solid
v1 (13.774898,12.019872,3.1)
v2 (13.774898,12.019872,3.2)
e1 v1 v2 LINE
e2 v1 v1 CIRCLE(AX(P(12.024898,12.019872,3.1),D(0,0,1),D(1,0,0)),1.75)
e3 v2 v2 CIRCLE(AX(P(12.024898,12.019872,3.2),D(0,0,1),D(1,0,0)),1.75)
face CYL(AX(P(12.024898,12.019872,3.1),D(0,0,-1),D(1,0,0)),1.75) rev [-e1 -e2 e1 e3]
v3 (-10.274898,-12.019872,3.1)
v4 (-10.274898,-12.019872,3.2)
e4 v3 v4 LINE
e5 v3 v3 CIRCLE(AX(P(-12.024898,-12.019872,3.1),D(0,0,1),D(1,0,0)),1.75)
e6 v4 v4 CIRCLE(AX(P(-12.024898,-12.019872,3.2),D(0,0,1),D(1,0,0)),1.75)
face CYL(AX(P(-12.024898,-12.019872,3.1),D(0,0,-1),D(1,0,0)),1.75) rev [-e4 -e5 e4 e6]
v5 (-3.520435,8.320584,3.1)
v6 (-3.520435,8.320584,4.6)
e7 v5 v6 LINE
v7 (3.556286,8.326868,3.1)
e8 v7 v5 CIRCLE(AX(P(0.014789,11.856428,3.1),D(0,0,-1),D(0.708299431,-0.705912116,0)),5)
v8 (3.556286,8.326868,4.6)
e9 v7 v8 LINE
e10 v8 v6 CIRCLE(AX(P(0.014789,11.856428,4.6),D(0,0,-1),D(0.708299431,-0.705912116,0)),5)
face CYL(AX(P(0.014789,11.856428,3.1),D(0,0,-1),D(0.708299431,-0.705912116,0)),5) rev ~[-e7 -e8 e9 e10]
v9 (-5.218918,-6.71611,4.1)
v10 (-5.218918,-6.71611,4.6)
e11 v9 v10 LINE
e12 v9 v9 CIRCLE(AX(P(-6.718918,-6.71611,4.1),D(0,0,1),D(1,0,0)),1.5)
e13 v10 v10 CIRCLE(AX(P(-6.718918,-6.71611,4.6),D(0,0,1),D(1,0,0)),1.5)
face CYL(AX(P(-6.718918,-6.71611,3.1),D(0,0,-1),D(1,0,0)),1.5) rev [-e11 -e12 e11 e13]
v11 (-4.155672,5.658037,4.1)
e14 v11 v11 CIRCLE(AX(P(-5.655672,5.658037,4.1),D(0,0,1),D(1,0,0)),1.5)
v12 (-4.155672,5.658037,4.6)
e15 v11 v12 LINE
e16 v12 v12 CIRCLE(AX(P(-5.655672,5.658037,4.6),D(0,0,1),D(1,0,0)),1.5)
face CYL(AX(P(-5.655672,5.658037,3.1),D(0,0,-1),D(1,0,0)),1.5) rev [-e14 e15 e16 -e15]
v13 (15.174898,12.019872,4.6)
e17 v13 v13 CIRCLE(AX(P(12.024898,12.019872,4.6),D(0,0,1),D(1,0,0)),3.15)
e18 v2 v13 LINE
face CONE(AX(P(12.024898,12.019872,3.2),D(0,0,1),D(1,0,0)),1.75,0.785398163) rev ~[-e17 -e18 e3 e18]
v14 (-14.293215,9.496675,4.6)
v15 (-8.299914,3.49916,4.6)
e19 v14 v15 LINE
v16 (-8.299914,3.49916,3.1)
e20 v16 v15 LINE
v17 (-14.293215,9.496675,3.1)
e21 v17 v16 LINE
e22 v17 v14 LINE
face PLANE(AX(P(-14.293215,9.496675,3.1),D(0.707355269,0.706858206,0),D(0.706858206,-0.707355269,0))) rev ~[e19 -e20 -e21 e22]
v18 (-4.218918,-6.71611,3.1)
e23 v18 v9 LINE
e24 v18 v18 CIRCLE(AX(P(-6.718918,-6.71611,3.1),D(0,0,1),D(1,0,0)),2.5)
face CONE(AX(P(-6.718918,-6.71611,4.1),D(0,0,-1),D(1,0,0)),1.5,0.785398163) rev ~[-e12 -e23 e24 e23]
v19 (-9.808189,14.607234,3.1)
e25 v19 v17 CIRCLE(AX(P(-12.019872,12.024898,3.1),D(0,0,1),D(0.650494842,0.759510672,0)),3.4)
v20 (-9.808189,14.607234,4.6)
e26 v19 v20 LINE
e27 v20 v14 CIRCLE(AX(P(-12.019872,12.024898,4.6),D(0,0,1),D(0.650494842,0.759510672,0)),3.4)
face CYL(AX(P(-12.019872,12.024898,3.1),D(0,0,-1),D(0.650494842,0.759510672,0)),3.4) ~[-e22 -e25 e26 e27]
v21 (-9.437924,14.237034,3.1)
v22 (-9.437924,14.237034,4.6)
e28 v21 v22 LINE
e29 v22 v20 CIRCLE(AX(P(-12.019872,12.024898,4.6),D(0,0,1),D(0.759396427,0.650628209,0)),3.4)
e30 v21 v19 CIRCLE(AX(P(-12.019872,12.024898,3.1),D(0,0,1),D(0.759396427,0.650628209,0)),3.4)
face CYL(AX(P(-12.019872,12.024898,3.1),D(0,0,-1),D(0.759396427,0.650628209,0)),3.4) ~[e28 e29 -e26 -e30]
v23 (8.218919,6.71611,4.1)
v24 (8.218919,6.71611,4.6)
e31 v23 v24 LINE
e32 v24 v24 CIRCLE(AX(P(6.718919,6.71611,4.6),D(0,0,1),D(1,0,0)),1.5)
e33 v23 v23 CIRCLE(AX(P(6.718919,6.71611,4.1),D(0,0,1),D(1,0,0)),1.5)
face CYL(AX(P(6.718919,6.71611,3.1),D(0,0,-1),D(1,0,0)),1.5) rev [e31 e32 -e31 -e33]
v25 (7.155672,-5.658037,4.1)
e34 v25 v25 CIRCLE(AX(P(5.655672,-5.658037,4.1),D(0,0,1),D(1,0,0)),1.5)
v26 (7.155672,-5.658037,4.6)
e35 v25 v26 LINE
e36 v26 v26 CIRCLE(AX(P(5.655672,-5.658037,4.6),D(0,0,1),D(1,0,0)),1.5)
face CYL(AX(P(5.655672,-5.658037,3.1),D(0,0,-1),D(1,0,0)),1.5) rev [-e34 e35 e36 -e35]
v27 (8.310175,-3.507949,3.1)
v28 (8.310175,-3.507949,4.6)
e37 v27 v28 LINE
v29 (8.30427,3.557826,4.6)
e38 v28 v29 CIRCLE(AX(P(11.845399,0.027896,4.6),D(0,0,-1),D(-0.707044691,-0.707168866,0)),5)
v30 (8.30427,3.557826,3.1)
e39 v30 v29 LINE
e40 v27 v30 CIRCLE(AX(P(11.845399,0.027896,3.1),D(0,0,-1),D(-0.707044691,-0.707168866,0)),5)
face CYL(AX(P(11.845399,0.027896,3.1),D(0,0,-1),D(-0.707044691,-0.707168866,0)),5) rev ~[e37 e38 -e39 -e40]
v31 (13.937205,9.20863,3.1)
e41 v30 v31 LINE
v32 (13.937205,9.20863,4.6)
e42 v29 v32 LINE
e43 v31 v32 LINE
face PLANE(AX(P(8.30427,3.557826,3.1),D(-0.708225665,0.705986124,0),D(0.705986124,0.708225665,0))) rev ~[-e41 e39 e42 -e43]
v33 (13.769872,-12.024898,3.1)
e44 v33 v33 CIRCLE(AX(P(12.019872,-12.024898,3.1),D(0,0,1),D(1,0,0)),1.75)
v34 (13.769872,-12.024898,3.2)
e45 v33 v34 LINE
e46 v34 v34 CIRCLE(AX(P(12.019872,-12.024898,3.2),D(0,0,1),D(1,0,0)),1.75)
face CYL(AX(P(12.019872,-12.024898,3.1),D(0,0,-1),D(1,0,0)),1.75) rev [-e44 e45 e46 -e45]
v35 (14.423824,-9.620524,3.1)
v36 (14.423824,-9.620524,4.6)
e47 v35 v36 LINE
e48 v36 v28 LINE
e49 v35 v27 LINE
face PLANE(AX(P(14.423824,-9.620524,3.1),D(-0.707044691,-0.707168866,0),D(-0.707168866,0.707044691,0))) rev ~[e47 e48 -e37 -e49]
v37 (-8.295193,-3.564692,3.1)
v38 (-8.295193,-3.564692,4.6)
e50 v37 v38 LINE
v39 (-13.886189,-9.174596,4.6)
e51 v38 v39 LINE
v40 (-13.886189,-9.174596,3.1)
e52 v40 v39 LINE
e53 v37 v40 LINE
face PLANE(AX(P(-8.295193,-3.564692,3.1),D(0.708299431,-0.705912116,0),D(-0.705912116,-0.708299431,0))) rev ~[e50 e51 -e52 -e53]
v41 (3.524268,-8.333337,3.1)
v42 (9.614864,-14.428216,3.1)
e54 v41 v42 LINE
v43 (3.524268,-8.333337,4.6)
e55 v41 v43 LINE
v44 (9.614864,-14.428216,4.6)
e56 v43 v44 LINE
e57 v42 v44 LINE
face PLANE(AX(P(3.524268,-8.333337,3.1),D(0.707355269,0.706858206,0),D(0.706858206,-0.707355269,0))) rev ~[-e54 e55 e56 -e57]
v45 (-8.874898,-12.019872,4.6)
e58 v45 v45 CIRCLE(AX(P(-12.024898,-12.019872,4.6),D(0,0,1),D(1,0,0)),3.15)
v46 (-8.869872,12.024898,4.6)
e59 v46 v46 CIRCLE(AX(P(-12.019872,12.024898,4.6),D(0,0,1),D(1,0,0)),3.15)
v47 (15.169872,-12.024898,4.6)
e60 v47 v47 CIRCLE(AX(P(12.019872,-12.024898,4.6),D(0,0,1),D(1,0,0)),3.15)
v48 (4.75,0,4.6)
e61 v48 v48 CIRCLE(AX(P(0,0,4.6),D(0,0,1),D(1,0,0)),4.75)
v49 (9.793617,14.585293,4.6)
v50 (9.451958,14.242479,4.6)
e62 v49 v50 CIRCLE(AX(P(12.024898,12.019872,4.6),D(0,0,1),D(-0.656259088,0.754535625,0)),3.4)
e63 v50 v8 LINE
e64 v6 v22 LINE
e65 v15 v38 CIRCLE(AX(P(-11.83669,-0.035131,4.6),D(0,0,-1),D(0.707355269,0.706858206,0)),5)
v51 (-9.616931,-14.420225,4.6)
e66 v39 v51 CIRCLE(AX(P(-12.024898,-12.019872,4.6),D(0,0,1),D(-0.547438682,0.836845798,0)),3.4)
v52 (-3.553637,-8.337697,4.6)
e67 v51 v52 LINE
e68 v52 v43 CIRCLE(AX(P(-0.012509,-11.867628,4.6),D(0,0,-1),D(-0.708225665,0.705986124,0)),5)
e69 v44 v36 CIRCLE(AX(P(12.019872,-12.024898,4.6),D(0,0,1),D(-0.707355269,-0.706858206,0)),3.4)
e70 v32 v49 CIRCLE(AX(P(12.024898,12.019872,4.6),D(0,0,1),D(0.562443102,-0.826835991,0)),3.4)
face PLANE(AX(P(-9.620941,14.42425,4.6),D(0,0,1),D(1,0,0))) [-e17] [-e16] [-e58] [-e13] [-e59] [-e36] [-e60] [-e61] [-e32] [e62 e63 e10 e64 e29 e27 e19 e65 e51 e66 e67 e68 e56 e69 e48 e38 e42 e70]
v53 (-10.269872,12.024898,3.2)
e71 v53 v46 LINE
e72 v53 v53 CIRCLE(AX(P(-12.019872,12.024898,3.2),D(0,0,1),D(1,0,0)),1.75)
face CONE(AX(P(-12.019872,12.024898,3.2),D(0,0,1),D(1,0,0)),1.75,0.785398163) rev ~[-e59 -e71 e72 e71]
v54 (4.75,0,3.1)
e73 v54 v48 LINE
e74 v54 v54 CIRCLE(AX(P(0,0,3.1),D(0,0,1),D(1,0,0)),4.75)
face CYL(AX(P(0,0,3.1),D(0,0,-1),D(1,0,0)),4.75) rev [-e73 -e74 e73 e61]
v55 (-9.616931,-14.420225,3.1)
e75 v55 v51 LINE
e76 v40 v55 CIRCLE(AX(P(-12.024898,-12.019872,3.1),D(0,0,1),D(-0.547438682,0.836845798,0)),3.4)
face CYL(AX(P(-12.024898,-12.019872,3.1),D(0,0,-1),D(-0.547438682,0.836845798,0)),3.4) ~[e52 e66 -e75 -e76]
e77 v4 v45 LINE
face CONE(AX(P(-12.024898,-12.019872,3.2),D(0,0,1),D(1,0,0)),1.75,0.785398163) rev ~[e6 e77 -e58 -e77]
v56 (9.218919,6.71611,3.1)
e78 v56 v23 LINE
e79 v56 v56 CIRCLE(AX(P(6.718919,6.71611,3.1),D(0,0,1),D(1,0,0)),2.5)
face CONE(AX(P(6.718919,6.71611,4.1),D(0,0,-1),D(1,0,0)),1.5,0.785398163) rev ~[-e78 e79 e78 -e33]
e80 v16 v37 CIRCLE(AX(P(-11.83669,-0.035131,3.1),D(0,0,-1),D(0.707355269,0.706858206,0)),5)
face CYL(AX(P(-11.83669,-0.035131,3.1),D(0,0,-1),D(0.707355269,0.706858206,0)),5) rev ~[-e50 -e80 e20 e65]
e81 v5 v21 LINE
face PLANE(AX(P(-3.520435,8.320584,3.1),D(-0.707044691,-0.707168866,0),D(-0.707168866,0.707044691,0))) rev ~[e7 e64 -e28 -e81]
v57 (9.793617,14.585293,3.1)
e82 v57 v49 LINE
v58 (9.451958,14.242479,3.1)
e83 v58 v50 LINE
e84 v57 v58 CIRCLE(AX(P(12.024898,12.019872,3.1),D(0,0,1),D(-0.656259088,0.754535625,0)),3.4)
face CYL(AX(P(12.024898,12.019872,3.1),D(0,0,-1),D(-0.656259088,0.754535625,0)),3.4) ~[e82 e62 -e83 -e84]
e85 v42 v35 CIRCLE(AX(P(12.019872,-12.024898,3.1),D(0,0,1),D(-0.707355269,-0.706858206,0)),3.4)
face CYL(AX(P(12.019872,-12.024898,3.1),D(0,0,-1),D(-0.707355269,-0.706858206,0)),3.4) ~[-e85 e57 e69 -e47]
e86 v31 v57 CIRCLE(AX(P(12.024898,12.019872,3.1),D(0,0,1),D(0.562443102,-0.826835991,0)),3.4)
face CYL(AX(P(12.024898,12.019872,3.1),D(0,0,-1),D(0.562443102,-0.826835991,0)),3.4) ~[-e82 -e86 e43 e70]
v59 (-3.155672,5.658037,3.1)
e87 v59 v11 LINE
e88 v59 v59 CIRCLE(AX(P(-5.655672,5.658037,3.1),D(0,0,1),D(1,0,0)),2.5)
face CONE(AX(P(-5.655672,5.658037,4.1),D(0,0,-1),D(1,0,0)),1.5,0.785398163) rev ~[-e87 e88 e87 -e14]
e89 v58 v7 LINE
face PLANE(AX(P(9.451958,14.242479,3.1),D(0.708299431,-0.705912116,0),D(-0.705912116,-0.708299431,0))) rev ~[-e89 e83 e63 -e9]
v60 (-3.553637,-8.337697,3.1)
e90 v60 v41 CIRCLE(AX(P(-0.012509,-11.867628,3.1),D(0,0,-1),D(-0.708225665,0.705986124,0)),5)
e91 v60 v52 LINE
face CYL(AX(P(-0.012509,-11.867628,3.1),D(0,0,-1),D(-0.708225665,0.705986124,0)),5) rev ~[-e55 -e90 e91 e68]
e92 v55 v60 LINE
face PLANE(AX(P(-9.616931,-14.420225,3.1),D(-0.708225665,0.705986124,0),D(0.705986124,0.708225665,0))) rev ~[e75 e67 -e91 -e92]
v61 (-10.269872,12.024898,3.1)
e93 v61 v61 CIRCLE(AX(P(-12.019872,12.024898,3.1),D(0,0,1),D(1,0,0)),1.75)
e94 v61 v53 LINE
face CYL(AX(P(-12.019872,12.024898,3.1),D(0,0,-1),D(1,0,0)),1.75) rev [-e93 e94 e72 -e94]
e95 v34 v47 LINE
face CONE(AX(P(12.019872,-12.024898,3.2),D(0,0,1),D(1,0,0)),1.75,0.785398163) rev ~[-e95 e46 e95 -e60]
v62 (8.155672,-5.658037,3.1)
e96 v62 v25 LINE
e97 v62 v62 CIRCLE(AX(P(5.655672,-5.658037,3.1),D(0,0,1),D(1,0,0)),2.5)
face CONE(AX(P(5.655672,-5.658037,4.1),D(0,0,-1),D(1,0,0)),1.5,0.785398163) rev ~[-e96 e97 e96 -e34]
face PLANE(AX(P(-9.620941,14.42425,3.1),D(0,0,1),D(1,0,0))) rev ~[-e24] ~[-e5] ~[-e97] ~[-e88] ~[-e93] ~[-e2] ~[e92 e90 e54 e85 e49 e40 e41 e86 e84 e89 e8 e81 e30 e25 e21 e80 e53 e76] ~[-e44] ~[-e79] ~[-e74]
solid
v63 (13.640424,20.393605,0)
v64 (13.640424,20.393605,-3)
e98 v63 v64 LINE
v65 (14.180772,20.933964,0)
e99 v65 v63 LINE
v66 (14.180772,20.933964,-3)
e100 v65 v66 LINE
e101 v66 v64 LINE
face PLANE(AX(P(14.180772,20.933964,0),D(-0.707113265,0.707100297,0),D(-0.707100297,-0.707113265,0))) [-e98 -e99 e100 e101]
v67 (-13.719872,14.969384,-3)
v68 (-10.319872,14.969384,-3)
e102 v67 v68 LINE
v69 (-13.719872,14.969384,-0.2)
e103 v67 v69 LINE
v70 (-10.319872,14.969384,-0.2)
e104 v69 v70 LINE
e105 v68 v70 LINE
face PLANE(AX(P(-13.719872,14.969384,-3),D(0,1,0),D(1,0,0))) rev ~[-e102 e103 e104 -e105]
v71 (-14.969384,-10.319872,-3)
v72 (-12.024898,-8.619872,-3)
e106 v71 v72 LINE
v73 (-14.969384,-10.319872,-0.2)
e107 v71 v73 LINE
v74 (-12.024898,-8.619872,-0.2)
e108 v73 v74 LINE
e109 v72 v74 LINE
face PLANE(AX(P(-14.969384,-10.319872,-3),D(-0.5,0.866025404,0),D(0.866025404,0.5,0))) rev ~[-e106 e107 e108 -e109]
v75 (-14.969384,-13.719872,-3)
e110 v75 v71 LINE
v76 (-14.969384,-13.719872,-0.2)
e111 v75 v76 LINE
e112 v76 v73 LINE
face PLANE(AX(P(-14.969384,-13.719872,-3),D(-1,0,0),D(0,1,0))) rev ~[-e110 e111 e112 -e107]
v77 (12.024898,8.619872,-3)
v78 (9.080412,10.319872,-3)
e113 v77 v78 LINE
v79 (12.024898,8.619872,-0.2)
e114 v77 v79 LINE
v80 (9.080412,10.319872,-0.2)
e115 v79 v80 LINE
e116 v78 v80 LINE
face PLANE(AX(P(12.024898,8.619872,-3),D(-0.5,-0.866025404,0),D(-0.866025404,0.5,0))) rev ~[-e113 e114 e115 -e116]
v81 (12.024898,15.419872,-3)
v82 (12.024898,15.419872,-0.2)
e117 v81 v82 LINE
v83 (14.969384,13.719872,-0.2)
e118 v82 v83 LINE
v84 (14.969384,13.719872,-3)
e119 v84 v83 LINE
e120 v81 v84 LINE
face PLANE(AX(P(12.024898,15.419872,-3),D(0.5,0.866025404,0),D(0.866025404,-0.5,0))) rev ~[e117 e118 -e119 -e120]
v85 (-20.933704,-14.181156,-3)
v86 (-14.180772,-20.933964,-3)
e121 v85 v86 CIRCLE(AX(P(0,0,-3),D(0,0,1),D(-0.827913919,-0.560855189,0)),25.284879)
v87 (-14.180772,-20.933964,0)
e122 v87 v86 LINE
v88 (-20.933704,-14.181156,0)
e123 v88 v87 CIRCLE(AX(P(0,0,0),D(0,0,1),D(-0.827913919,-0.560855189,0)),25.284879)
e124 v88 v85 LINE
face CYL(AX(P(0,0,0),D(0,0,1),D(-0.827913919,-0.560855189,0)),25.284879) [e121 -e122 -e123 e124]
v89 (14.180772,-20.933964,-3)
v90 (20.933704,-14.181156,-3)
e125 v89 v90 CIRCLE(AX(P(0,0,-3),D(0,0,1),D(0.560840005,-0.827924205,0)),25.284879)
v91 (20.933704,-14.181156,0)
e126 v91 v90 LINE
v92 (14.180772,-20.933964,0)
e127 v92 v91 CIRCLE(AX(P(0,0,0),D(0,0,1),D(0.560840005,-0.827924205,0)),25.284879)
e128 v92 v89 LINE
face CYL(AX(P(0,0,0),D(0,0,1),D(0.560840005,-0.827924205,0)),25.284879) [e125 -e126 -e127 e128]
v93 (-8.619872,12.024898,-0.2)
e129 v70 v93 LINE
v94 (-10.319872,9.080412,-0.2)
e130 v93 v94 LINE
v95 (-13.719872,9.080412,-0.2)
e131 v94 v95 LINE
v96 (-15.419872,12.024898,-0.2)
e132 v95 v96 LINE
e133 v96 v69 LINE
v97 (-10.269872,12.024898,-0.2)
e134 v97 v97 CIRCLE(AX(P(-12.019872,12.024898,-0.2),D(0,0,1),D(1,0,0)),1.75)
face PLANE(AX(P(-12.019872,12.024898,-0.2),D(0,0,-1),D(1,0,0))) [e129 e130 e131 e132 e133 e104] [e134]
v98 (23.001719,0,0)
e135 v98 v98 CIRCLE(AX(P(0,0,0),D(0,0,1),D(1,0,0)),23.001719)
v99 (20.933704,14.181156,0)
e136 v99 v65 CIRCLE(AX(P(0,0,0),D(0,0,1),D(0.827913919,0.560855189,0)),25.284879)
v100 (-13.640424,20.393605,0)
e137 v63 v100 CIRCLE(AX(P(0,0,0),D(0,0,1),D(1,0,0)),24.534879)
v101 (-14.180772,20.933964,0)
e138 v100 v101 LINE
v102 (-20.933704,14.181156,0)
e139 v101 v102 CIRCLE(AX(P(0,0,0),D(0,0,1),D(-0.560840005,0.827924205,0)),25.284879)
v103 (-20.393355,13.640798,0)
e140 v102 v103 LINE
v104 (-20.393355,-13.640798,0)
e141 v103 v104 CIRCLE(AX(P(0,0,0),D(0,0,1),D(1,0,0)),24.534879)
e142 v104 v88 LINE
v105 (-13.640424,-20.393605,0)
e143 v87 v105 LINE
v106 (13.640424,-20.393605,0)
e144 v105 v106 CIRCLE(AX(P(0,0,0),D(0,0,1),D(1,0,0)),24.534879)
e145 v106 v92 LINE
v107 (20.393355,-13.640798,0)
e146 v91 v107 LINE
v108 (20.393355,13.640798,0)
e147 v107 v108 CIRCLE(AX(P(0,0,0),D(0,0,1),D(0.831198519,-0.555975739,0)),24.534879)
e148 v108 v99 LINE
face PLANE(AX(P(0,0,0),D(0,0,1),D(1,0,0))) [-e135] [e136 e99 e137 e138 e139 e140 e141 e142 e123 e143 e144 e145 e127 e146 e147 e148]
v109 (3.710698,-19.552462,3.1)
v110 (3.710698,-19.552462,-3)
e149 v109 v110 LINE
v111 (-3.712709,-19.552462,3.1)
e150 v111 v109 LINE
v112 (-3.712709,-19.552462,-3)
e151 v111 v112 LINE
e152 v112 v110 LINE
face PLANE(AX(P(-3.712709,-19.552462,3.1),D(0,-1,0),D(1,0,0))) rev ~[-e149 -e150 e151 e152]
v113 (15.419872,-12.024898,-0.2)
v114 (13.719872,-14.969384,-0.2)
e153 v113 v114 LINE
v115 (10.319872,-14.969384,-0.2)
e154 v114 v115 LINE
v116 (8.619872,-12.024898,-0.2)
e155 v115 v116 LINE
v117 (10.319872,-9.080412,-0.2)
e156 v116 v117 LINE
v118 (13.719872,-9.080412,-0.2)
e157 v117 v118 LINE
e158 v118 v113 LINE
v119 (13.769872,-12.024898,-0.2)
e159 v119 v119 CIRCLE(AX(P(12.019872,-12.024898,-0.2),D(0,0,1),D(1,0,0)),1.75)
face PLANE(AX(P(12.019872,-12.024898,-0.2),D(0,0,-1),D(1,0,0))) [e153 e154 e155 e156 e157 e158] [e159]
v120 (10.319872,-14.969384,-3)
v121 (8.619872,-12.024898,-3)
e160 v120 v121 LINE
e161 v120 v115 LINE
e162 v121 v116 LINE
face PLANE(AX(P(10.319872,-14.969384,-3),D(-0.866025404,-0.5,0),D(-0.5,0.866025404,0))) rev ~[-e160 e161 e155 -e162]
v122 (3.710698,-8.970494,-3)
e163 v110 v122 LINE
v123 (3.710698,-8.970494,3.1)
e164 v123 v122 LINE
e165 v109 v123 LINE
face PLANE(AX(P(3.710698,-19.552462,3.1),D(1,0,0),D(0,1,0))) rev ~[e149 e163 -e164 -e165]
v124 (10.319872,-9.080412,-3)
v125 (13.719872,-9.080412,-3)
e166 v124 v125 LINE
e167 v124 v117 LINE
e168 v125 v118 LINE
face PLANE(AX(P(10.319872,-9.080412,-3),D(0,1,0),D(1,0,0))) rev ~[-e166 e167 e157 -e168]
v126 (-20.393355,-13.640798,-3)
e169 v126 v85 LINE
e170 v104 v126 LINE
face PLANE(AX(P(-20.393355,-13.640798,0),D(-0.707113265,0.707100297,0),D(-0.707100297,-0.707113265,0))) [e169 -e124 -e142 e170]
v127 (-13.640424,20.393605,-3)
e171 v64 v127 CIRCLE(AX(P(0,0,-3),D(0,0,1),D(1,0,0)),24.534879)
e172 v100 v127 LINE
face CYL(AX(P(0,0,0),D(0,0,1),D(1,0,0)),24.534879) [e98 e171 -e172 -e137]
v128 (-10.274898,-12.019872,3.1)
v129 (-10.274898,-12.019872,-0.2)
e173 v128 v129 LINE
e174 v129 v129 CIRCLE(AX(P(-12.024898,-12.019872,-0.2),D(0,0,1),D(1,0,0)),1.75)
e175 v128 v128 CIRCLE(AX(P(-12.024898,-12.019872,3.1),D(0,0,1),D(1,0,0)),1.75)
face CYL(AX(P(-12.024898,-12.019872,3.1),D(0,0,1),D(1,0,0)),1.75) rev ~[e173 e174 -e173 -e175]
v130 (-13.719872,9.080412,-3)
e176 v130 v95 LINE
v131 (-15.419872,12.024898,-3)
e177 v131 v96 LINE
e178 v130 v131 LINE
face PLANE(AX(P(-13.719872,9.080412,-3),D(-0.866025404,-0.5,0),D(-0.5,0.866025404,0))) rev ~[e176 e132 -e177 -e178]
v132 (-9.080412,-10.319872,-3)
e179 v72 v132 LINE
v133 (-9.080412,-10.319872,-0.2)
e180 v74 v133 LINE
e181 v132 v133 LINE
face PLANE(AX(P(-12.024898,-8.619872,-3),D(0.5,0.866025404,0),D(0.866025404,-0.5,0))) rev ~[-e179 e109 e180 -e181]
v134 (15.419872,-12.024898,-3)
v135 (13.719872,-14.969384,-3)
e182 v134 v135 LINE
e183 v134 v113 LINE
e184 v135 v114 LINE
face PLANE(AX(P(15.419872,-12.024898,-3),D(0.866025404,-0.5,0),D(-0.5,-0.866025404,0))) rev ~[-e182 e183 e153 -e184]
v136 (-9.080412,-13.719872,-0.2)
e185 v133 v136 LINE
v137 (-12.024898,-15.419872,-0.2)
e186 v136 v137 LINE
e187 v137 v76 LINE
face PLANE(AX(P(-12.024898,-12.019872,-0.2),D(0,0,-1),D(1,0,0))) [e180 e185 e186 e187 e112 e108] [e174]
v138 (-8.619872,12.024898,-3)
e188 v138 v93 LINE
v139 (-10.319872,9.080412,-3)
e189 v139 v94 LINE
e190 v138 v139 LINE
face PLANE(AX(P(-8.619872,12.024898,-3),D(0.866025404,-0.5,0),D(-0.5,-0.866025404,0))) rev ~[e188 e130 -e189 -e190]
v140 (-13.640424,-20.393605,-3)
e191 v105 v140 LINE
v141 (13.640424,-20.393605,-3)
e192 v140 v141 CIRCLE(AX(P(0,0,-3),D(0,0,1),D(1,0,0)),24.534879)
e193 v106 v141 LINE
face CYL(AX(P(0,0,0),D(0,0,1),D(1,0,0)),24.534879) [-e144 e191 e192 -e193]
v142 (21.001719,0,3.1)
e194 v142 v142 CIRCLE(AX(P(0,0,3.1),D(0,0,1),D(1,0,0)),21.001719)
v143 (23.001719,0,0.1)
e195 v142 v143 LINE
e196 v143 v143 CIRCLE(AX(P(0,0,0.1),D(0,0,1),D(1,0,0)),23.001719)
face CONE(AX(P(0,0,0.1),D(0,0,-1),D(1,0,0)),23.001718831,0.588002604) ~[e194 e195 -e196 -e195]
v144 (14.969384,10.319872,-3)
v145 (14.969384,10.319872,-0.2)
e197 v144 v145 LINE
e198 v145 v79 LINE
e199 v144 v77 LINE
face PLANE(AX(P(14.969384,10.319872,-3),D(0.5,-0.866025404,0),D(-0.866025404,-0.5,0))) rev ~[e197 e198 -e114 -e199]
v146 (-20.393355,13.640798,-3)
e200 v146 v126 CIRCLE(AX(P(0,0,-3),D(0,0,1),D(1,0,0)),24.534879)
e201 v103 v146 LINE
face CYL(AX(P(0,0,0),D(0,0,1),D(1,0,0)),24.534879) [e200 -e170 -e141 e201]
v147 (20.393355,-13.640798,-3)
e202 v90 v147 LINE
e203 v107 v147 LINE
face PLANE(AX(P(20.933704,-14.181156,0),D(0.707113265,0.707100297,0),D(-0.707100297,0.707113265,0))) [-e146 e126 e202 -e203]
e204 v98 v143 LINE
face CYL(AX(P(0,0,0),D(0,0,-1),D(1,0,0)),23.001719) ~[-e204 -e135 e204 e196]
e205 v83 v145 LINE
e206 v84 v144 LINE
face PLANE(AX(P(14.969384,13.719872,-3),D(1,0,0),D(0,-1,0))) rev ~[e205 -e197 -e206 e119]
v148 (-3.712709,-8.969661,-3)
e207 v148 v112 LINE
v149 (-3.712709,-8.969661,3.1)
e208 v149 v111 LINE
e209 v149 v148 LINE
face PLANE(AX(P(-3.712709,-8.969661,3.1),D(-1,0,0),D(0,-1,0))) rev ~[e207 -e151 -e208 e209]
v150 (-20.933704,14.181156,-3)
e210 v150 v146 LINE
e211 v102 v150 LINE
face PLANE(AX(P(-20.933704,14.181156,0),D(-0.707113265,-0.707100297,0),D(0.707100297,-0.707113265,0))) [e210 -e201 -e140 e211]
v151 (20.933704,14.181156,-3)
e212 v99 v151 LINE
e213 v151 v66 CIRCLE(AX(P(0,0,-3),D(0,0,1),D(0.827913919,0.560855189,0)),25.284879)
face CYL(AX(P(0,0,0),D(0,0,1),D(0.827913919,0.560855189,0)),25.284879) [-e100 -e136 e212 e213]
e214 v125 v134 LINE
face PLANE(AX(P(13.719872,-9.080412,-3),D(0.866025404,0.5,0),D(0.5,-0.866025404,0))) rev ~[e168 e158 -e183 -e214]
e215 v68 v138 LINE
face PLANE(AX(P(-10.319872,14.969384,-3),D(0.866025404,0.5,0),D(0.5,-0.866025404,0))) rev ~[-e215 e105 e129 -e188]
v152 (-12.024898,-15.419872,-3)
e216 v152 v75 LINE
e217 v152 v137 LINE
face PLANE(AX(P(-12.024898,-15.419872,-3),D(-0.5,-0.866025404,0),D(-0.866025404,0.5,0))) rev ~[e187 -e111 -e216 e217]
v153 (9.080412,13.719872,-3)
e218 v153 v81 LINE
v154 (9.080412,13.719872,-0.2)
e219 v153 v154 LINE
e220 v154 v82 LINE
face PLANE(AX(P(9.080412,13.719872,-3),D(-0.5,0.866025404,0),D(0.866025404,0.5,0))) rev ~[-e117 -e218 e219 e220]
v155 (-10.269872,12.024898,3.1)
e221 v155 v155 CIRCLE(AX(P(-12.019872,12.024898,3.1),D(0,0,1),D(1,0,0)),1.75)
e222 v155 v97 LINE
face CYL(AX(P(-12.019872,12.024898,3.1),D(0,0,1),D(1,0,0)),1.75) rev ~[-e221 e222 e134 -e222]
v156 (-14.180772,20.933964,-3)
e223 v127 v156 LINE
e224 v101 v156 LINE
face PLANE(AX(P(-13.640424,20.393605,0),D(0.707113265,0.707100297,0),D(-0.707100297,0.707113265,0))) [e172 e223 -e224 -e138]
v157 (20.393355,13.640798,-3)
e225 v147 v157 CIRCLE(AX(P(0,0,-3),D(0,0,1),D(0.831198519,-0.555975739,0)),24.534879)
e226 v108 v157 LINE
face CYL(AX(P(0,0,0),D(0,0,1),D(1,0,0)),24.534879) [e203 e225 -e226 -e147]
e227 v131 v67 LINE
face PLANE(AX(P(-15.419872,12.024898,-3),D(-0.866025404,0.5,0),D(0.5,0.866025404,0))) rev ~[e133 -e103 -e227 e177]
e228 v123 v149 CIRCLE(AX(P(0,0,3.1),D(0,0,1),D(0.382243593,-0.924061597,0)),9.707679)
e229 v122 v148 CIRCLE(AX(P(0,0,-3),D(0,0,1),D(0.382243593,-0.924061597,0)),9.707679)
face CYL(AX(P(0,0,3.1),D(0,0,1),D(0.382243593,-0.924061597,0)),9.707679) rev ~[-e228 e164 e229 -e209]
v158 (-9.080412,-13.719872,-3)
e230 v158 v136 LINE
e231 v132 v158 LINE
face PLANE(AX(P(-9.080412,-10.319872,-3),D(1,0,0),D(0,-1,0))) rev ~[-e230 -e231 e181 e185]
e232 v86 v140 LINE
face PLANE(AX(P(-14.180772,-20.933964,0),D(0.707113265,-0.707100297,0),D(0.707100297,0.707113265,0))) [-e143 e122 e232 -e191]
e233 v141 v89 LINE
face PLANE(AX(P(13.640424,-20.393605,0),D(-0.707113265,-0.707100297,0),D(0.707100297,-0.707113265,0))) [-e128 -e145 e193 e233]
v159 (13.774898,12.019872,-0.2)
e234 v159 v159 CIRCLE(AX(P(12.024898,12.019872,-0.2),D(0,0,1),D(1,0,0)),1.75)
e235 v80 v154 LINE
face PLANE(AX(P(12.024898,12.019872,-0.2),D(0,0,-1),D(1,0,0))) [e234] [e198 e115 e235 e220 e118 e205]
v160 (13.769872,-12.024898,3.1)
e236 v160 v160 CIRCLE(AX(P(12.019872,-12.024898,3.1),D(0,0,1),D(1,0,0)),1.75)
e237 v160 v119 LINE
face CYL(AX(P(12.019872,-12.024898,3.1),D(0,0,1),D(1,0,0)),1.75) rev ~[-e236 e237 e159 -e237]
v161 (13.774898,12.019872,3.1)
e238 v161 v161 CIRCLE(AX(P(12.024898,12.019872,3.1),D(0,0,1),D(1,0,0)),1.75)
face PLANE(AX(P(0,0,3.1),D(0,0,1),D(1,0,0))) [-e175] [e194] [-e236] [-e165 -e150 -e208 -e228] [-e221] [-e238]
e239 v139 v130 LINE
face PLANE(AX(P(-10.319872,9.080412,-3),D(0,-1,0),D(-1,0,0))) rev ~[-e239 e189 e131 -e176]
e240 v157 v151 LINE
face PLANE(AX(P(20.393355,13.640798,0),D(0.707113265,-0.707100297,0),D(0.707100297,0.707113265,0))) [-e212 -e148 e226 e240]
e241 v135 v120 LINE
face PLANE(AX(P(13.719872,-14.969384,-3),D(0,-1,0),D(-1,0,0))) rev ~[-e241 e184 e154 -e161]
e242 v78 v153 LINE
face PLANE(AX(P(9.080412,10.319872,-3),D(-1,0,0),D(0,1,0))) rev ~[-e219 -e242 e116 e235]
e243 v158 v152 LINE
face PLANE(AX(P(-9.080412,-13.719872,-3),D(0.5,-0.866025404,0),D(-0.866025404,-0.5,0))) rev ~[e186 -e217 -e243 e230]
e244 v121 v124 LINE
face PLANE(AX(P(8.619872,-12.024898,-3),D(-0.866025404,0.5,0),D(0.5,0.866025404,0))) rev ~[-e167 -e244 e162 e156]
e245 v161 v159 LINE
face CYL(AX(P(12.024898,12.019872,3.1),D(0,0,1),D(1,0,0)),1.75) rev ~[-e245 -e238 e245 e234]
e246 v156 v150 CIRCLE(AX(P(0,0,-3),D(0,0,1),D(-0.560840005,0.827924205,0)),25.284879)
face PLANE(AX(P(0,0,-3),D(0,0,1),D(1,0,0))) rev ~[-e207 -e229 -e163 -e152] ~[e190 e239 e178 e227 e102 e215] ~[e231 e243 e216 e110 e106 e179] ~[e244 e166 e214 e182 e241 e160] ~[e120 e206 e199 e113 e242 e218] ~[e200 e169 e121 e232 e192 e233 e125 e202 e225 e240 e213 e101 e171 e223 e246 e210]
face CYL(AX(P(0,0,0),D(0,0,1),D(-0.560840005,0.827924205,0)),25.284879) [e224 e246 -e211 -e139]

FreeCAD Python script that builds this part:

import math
import FreeCAD as App
import Part
import Sketcher

V = App.Vector
Q = App.Units.Quantity


def edges_at(feature, points):
    """Names of the edges that pass closest to the given points."""
    edges = feature.Shape.Edges
    near = lambda p: min(range(len(edges)), key=lambda i: edges[i].distToShape(Part.Vertex(*p))[0])
    return sorted({f"Edge{near(p) + 1}" for p in points})

doc = App.newDocument("Part")
body = doc.addObject("PartDesign::Body", "Body")

sketch1 = doc.addObject("Sketcher::SketchObject", "Sketch")
body.addObject(sketch1)
sketch1.AttachmentSupport = (doc.XY_Plane, [""])
sketch1.MapMode = "FlatFace"
sketch1.addGeometry(Part.Circle(V(0, 0, 0), V(0, 0, 1), 25), False)
sketch1.addConstraint([
    Sketcher.Constraint("Coincident", 0, 3, -1, 1),
    Sketcher.Constraint("Diameter", 0, Q("49.069759 mm")),
])
pad1 = doc.addObject("PartDesign::Pad", "Pad")
body.addObject(pad1)
pad1.Profile = sketch1
pad1.Length = 3
pad1.Reversed = True

sketch2 = doc.addObject("Sketcher::SketchObject", "Sketch001")
body.addObject(sketch2)
sketch2.AttachmentSupport = (doc.XY_Plane, [""])
sketch2.MapMode = "FlatFace"
sketch2.addGeometry(Part.Circle(V(0, 0, 0), V(0, 0, 1), 23), False)
sketch2.addConstraint([
    Sketcher.Constraint("Coincident", 0, 3, -1, 1),
    Sketcher.Constraint("Diameter", 0, Q("46.003438 mm")),
])
pad2 = doc.addObject("PartDesign::Pad", "Pad001")
body.addObject(pad2)
pad2.Profile = sketch2
pad2.Length = 3.1
doc.recompute()

chamfer = doc.addObject("PartDesign::Chamfer", "Chamfer")
body.addObject(chamfer)
chamfer.Base = (pad2, edges_at(pad2, [(-23.002, 0, 3.1)]))
chamfer.ChamferType = "Two distances"
chamfer.Size = 2
chamfer.Size2 = 3
chamfer.FlipDirection = True

sketch3 = doc.addObject("Sketcher::SketchObject", "Sketch002")
body.addObject(sketch3)
sketch3.AttachmentSupport = (doc.XY_Plane, [""])
sketch3.MapMode = "FlatFace"
sketch3.AttachmentOffset = App.Placement(V(0, 0, 3.1), App.Rotation())
sketch3.addGeometry([
    Part.LineSegment(V(4, -20, 0), V(4, -9, 0)),
    Part.ArcOfCircle(Part.Circle(V(0, 0, 0), V(0, 0, 1), 10), math.radians(-68), math.radians(248)),
    Part.LineSegment(V(-4, -9, 0), V(-4, -20, 0)),
    Part.LineSegment(V(-4, -20, 0), V(4, -20, 0)),
], False)
sketch3.addConstraint([
    Sketcher.Constraint("Coincident", 0, 2, 1, 1),
    Sketcher.Constraint("Coincident", 1, 2, 2, 1),
    Sketcher.Constraint("Coincident", 2, 2, 3, 1),
    Sketcher.Constraint("Coincident", 3, 2, 0, 1),
    Sketcher.Constraint("Vertical", 0),
    Sketcher.Constraint("Vertical", 2),
    Sketcher.Constraint("Horizontal", 3),
    Sketcher.Constraint("Coincident", 1, 3, -1, 1),
    Sketcher.Constraint("Radius", 1, Q("9.707679 mm")),
    Sketcher.Constraint("DistanceY", 2, 2, 2, 1, Q("10.5828 mm")),
    Sketcher.Constraint("DistanceY", 0, 1, 0, 2, Q("10.581968 mm")),
    Sketcher.Constraint("DistanceX", -1, 1, 0, 2, Q("3.710698 mm")),
])
pocket1 = doc.addObject("PartDesign::Pocket", "Pocket")
body.addObject(pocket1)
pocket1.Profile = sketch3
pocket1.Length = 25

sketch4 = doc.addObject("Sketcher::SketchObject", "Sketch003")
body.addObject(sketch4)
sketch4.AttachmentSupport = (doc.XY_Plane, [""])
sketch4.MapMode = "FlatFace"
sketch4.AttachmentOffset = App.Placement(V(0, 0, 3.1), App.Rotation())
sketch4.addGeometry([
    Part.Circle(V(-12, 12, 0), V(0, 0, 1), 1.8),
    Part.Circle(V(-12, -12, 0), V(0, 0, 1), 1.8),
    Part.Circle(V(12, -12, 0), V(0, 0, 1), 1.8),
    Part.Circle(V(12, 12, 0), V(0, 0, 1), 1.8),
], False)
sketch4.addConstraint([
    Sketcher.Constraint("Equal", 0, 1),
    Sketcher.Constraint("Equal", 1, 2),
    Sketcher.Constraint("Equal", 2, 3),
    Sketcher.Constraint("Symmetric", 0, 3, 2, 3, -1, 1),
    Sketcher.Constraint("Symmetric", 1, 3, 3, 3, -1, 1),
    Sketcher.Constraint("Diameter", 0, Q("3.5 mm")),
    Sketcher.Constraint("DistanceY", -1, 1, 0, 3, Q("12.024898 mm")),
    Sketcher.Constraint("DistanceX", 1, 3, -1, 1, Q("12.024898 mm")),
    Sketcher.Constraint("DistanceX", 0, 3, -1, 1, Q("12.019872 mm")),
    Sketcher.Constraint("DistanceY", 1, 3, -1, 1, Q("12.019872 mm")),
])
pocket2 = doc.addObject("PartDesign::Pocket", "Pocket001")
body.addObject(pocket2)
pocket2.Profile = sketch4
pocket2.Length = 25

sketch5 = doc.addObject("Sketcher::SketchObject", "Sketch004")
body.addObject(sketch5)
sketch5.AttachmentSupport = (doc.XY_Plane, [""])
sketch5.MapMode = "FlatFace"
sketch5.AttachmentOffset = App.Placement(V(0, 0, -3), App.Rotation())
sketch5.addGeometry([
    Part.LineSegment(V(10.3, -9.1, 0), V(13.7, -9.1, 0)),
    Part.LineSegment(V(13.7, -9.1, 0), V(15.4, -12, 0)),
    Part.LineSegment(V(15.4, -12, 0), V(13.7, -15, 0)),
    Part.LineSegment(V(13.7, -15, 0), V(10.3, -15, 0)),
    Part.LineSegment(V(10.3, -15, 0), V(8.6, -12, 0)),
    Part.LineSegment(V(8.6, -12, 0), V(10.3, -9.1, 0)),
    Part.LineSegment(V(-15, -10.3, 0), V(-12, -8.6, 0)),
    Part.LineSegment(V(-12, -8.6, 0), V(-9.1, -10.3, 0)),
    Part.LineSegment(V(-9.1, -10.3, 0), V(-9.1, -13.7, 0)),
    Part.LineSegment(V(-9.1, -13.7, 0), V(-12, -15.4, 0)),
    Part.LineSegment(V(-12, -15.4, 0), V(-15, -13.7, 0)),
    Part.LineSegment(V(-15, -13.7, 0), V(-15, -10.3, 0)),
    Part.LineSegment(V(-10.3, 15, 0), V(-8.6, 12, 0)),
    Part.LineSegment(V(-8.6, 12, 0), V(-10.3, 9.1, 0)),
    Part.LineSegment(V(-10.3, 9.1, 0), V(-13.7, 9.1, 0)),
    Part.LineSegment(V(-13.7, 9.1, 0), V(-15.4, 12, 0)),
    Part.LineSegment(V(-15.4, 12, 0), V(-13.7, 15, 0)),
    Part.LineSegment(V(-13.7, 15, 0), V(-10.3, 15, 0)),
    Part.LineSegment(V(15, 10.3, 0), V(12, 8.6, 0)),
    Part.LineSegment(V(12, 8.6, 0), V(9.1, 10.3, 0)),
    Part.LineSegment(V(9.1, 10.3, 0), V(9.1, 13.7, 0)),
    Part.LineSegment(V(9.1, 13.7, 0), V(12, 15.4, 0)),
    Part.LineSegment(V(12, 15.4, 0), V(15, 13.7, 0)),
    Part.LineSegment(V(15, 13.7, 0), V(15, 10.3, 0)),
], False)
sketch5.addConstraint([
    Sketcher.Constraint("Coincident", 0, 2, 1, 1),
    Sketcher.Constraint("Coincident", 1, 2, 2, 1),
    Sketcher.Constraint("Coincident", 2, 2, 3, 1),
    Sketcher.Constraint("Coincident", 3, 2, 4, 1),
    Sketcher.Constraint("Coincident", 4, 2, 5, 1),
    Sketcher.Constraint("Coincident", 5, 2, 0, 1),
    Sketcher.Constraint("Coincident", 6, 2, 7, 1),
    Sketcher.Constraint("Coincident", 7, 2, 8, 1),
    Sketcher.Constraint("Coincident", 8, 2, 9, 1),
    Sketcher.Constraint("Coincident", 9, 2, 10, 1),
    Sketcher.Constraint("Coincident", 10, 2, 11, 1),
    Sketcher.Constraint("Coincident", 11, 2, 6, 1),
    Sketcher.Constraint("Coincident", 12, 2, 13, 1),
    Sketcher.Constraint("Coincident", 13, 2, 14, 1),
    Sketcher.Constraint("Coincident", 14, 2, 15, 1),
    Sketcher.Constraint("Coincident", 15, 2, 16, 1),
    Sketcher.Constraint("Coincident", 16, 2, 17, 1),
    Sketcher.Constraint("Coincident", 17, 2, 12, 1),
    Sketcher.Constraint("Coincident", 18, 2, 19, 1),
    Sketcher.Constraint("Coincident", 19, 2, 20, 1),
    Sketcher.Constraint("Coincident", 20, 2, 21, 1),
    Sketcher.Constraint("Coincident", 21, 2, 22, 1),
    Sketcher.Constraint("Coincident", 22, 2, 23, 1),
    Sketcher.Constraint("Coincident", 23, 2, 18, 1),
    Sketcher.Constraint("Horizontal", 0),
    Sketcher.Constraint("Horizontal", 3),
    Sketcher.Constraint("Vertical", 8),
    Sketcher.Constraint("Vertical", 11),
    Sketcher.Constraint("Horizontal", 14),
    Sketcher.Constraint("Horizontal", 17),
    Sketcher.Constraint("Vertical", 20),
    Sketcher.Constraint("Vertical", 23),
    Sketcher.Constraint("Symmetric", 4, 2, 12, 2, -1, 1),
    Sketcher.Constraint("Symmetric", 5, 2, 13, 2, -1, 1),
    Sketcher.Constraint("Symmetric", 1, 2, 15, 2, -1, 1),
    Sketcher.Constraint("Symmetric", 2, 2, 16, 2, -1, 1),
    Sketcher.Constraint("Symmetric", 6, 2, 18, 2, -1, 1),
    Sketcher.Constraint("Symmetric", 7, 2, 19, 2, -1, 1),
    Sketcher.Constraint("Symmetric", 9, 2, 21, 2, -1, 1),
    Sketcher.Constraint("Symmetric", 10, 2, 22, 2, -1, 1),
    Sketcher.Constraint("Parallel", 1, 4),
    Sketcher.Constraint("Parallel", 2, 5),
    Sketcher.Constraint("Perpendicular", 4, 6),
    Sketcher.Constraint("Perpendicular", 5, 7),
    Sketcher.Constraint("Parallel", 6, 9),
    Sketcher.Constraint("Parallel", 7, 10),
    Sketcher.Constraint("Perpendicular", 9, 12),
    Sketcher.Constraint("Parallel", 12, 15),
    Sketcher.Constraint("Perpendicular", 15, 18),
    Sketcher.Constraint("Parallel", 18, 21),
    Sketcher.Constraint("Horizontal", 1, 2, 4, 2),
    Sketcher.Constraint("Horizontal", 8, 2, 10, 2),
    Sketcher.Constraint("Horizontal", 7, 2, 11, 2),
    Sketcher.Constraint("Vertical", 0, 2, 2, 2),
    Sketcher.Constraint("Vertical", 3, 2, 5, 2),
    Sketcher.Constraint("Equal", 17, 8),
    Sketcher.Constraint("Equal", 5, 6),
    Sketcher.Constraint("Angle", 1, Q("-60 deg")),
    Sketcher.Constraint("DistanceX", 0, 1, 0, 2, Q("3.4 mm")),
    Sketcher.Constraint("Distance", 1, Q("3.4 mm")),
    Sketcher.Constraint("DistanceY", 1, 2, -1, 1, Q("12.024898 mm")),
    Sketcher.Constraint("DistanceX", 6, 2, -1, 1, Q("12.024898 mm")),
    Sketcher.Constraint("DistanceX", -1, 1, 0, 2, Q("13.719872 mm")),
    Sketcher.Constraint("DistanceY", 6, 2, -1, 1, Q("8.619872 mm")),
])
pocket3 = doc.addObject("PartDesign::Pocket", "Pocket002")
body.addObject(pocket3)
pocket3.Profile = sketch5
pocket3.Length = 2.8
pocket3.Reversed = True

sketch6 = doc.addObject("Sketcher::SketchObject", "Sketch005")
body.addObject(sketch6)
sketch6.AttachmentSupport = (doc.XY_Plane, [""])
sketch6.MapMode = "FlatFace"
sketch6.addGeometry([
    Part.LineSegment(V(-20.9, 14.2, 0), V(-20.4, 13.6, 0)),
    Part.ArcOfCircle(Part.Circle(V(0, 0, 0), V(0, 0, 1), 24.5), math.radians(124), math.radians(146)),
    Part.LineSegment(V(-13.6, 20.4, 0), V(-14.2, 20.9, 0)),
    Part.ArcOfCircle(Part.Circle(V(0, 0, 0), V(0, 0, 1), 25.3), math.radians(124), math.radians(146)),
    Part.LineSegment(V(14.2, 20.9, 0), V(13.6, 20.4, 0)),
    Part.ArcOfCircle(Part.Circle(V(0, 0, 0), V(0, 0, 1), 24.5), math.radians(34), math.radians(56)),
    Part.LineSegment(V(20.4, 13.6, 0), V(20.9, 14.2, 0)),
    Part.ArcOfCircle(Part.Circle(V(0, 0, 0), V(0, 0, 1), 25.3), math.radians(34), math.radians(56)),
    Part.LineSegment(V(-20.4, -13.6, 0), V(-20.9, -14.2, 0)),
    Part.ArcOfCircle(Part.Circle(V(0, 0, 0), V(0, 0, 1), 25.3), math.radians(-146), math.radians(-124)),
    Part.LineSegment(V(-14.2, -20.9, 0), V(-13.6, -20.4, 0)),
    Part.ArcOfCircle(Part.Circle(V(0, 0, 0), V(0, 0, 1), 24.5), math.radians(-146), math.radians(-124)),
    Part.ArcOfCircle(Part.Circle(V(0, 0, 0), V(0, 0, 1), 24.5), math.radians(-56), math.radians(-34)),
    Part.LineSegment(V(13.6, -20.4, 0), V(14.2, -20.9, 0)),
    Part.ArcOfCircle(Part.Circle(V(0, 0, 0), V(0, 0, 1), 25.3), math.radians(-56), math.radians(-34)),
    Part.LineSegment(V(20.9, -14.2, 0), V(20.4, -13.6, 0)),
], False)
sketch6.addConstraint([
    Sketcher.Constraint("Coincident", 0, 2, 1, 2),
    Sketcher.Constraint("Coincident", 1, 1, 2, 1),
    Sketcher.Constraint("Coincident", 2, 2, 3, 1),
    Sketcher.Constraint("Coincident", 3, 2, 0, 1),
    Sketcher.Constraint("Coincident", 4, 2, 5, 2),
    Sketcher.Constraint("Coincident", 5, 1, 6, 1),
    Sketcher.Constraint("Coincident", 6, 2, 7, 1),
    Sketcher.Constraint("Coincident", 7, 2, 4, 1),
    Sketcher.Constraint("Coincident", 8, 2, 9, 1),
    Sketcher.Constraint("Coincident", 9, 2, 10, 1),
    Sketcher.Constraint("Coincident", 10, 2, 11, 2),
    Sketcher.Constraint("Coincident", 11, 1, 8, 1),
    Sketcher.Constraint("Coincident", 12, 1, 13, 1),
    Sketcher.Constraint("Coincident", 13, 2, 14, 1),
    Sketcher.Constraint("Coincident", 14, 2, 15, 1),
    Sketcher.Constraint("Coincident", 15, 2, 12, 2),
    Sketcher.Constraint("Coincident", 1, 3, -1, 1),
    Sketcher.Constraint("Coincident", 3, 3, -1, 1),
    Sketcher.Constraint("Coincident", 5, 3, -1, 1),
    Sketcher.Constraint("Coincident", 7, 3, -1, 1),
    Sketcher.Constraint("Coincident", 9, 3, -1, 1),
    Sketcher.Constraint("Coincident", 11, 3, -1, 1),
    Sketcher.Constraint("Coincident", 12, 3, -1, 1),
    Sketcher.Constraint("Coincident", 14, 3, -1, 1),
    Sketcher.Constraint("Equal", 1, 5),
    Sketcher.Constraint("Equal", 3, 7),
    Sketcher.Constraint("Equal", 7, 9),
    Sketcher.Constraint("Equal", 5, 11),
    Sketcher.Constraint("Equal", 11, 12),
    Sketcher.Constraint("Equal", 9, 14),
    Sketcher.Constraint("Parallel", 0, 2),
    Sketcher.Constraint("Parallel", 4, 6),
    Sketcher.Constraint("Parallel", 6, 8),
    Sketcher.Constraint("Parallel", 8, 10),
    Sketcher.Constraint("Parallel", 2, 13),
    Sketcher.Constraint("Parallel", 13, 15),
    Sketcher.Constraint("Horizontal", 1, 1, 4, 2),
    Sketcher.Constraint("Horizontal", 0, 2, 5, 1),
    Sketcher.Constraint("Horizontal", 3, 2, 6, 2),
    Sketcher.Constraint("Horizontal", 10, 2, 12, 1),
    Sketcher.Constraint("Horizontal", 8, 2, 14, 2),
    Sketcher.Constraint("Vertical", 3, 2, 8, 2),
    Sketcher.Constraint("Vertical", 2, 2, 9, 2),
    Sketcher.Constraint("Equal", 0, 2),
    Sketcher.Constraint("Radius", 1, Q("24.534879 mm")),
    Sketcher.Constraint("Radius", 3, Q("25.284879 mm")),
    Sketcher.Constraint("DistanceX", 2, 2, -1, 1, Q("14.180772 mm")),
    Sketcher.Constraint("DistanceX", 0, 2, 1, 1, Q("6.752932 mm")),
])
pad3 = doc.addObject("PartDesign::Pad", "Pad002")
body.addObject(pad3)
pad3.Profile = sketch6
pad3.Length = 3
pad3.Reversed = True
body2 = doc.addObject("PartDesign::Body", "Body001")

sketch7 = doc.addObject("Sketcher::SketchObject", "Sketch006")
body2.addObject(sketch7)
sketch7.AttachmentSupport = (doc.getObject("XY_Plane001"), [""])
sketch7.MapMode = "FlatFace"
sketch7.AttachmentOffset = App.Placement(V(0, 0, 3.1), App.Rotation())
sketch7.addGeometry([
    Part.ArcOfCircle(Part.Circle(V(-12.02, 12.02, 0), V(0, 0, 1), 3.4), math.radians(40.59), math.radians(49.42)),
    Part.ArcOfCircle(Part.Circle(V(-12.02, 12.02, 0), V(0, 0, 1), 3.4), math.radians(49), math.radians(228)),
    Part.LineSegment(V(-14.29, 9.5, 0), V(-8.3, 3.5, 0)),
    Part.ArcOfCircle(Part.Circle(V(-11.84, -0.04, 0), V(0, 0, 1), 5), math.radians(-45), math.radians(45)),
    Part.LineSegment(V(-8.3, -3.56, 0), V(-13.89, -9.17, 0)),
    Part.ArcOfCircle(Part.Circle(V(-12.02, -12.02, 0), V(0, 0, 1), 3.4), math.radians(123), math.radians(315)),
    Part.LineSegment(V(-9.62, -14.42, 0), V(-3.55, -8.34, 0)),
    Part.ArcOfCircle(Part.Circle(V(-0.01, -11.87, 0), V(0, 0, 1), 5), math.radians(45), math.radians(135)),
    Part.LineSegment(V(3.52, -8.33, 0), V(9.61, -14.43, 0)),
    Part.ArcOfCircle(Part.Circle(V(12.02, -12.02, 0), V(0, 0, 1), 3.4), math.radians(-135), math.radians(45)),
    Part.LineSegment(V(14.42, -9.62, 0), V(8.31, -3.51, 0)),
    Part.ArcOfCircle(Part.Circle(V(11.85, 0.03, 0), V(0, 0, 1), 5), math.radians(135), math.radians(225)),
    Part.LineSegment(V(8.3, 3.56, 0), V(13.94, 9.21, 0)),
    Part.ArcOfCircle(Part.Circle(V(12.02, 12.02, 0), V(0, 0, 1), 3.4), math.radians(-56), math.radians(131)),
    Part.ArcOfCircle(Part.Circle(V(12.02, 12.02, 0), V(0, 0, 1), 3.4), math.radians(131.02), math.radians(139.18)),
    Part.LineSegment(V(9.45, 14.24, 0), V(3.56, 8.33, 0)),
    Part.ArcOfCircle(Part.Circle(V(0.01, 11.86, 0), V(0, 0, 1), 5), math.radians(-135), math.radians(-45)),
    Part.LineSegment(V(-3.52, 8.32, 0), V(-9.44, 14.24, 0)),
    Part.Circle(V(-12.02, -12.02, 0), V(0, 0, 1), 1.75),
    Part.Circle(V(-6.72, -6.72, 0), V(0, 0, 1), 1.5),
    Part.Circle(V(12.02, -12.02, 0), V(0, 0, 1), 1.75),
    Part.Circle(V(5.66, -5.66, 0), V(0, 0, 1), 1.5),
    Part.Circle(V(-5.66, 5.66, 0), V(0, 0, 1), 1.5),
    Part.Circle(V(-12.02, 12.02, 0), V(0, 0, 1), 1.75),
    Part.Circle(V(0, 0, 0), V(0, 0, 1), 4.75),
    Part.Circle(V(6.72, 6.72, 0), V(0, 0, 1), 1.5),
    Part.Circle(V(12.02, 12.02, 0), V(0, 0, 1), 1.75),
], False)
sketch7.addConstraint([
    Sketcher.Constraint("Tangent", 0, 2, 1, 1),
    Sketcher.Constraint("Coincident", 1, 2, 2, 1),
    Sketcher.Constraint("Tangent", 2, 2, 3, 2),
    Sketcher.Constraint("Tangent", 3, 1, 4, 1),
    Sketcher.Constraint("Coincident", 4, 2, 5, 1),
    Sketcher.Constraint("Tangent", 5, 2, 6, 1),
    Sketcher.Constraint("Tangent", 6, 2, 7, 2),
    Sketcher.Constraint("Tangent", 7, 1, 8, 1),
    Sketcher.Constraint("Tangent", 8, 2, 9, 1),
    Sketcher.Constraint("Tangent", 9, 2, 10, 1),
    Sketcher.Constraint("Tangent", 10, 2, 11, 2),
    Sketcher.Constraint("Tangent", 11, 1, 12, 1),
    Sketcher.Constraint("Coincident", 12, 2, 13, 1),
    Sketcher.Constraint("Tangent", 13, 2, 14, 1),
    Sketcher.Constraint("Coincident", 14, 2, 15, 1),
    Sketcher.Constraint("Tangent", 15, 2, 16, 2),
    Sketcher.Constraint("Tangent", 16, 1, 17, 1),
    Sketcher.Constraint("Coincident", 17, 2, 0, 1),
    Sketcher.Constraint("Coincident", 24, 3, -1, 1),
    Sketcher.Constraint("Coincident", 18, 3, 5, 3),
    Sketcher.Constraint("Coincident", 20, 3, 9, 3),
    Sketcher.Constraint("Coincident", 23, 3, 0, 3),
    Sketcher.Constraint("Coincident", 26, 3, 13, 3),
    Sketcher.Constraint("Equal", 0, 1),
    Sketcher.Constraint("Equal", 1, 5),
    Sketcher.Constraint("Equal", 3, 7),
    Sketcher.Constraint("Equal", 5, 9),
    Sketcher.Constraint("Equal", 7, 11),
    Sketcher.Constraint("Equal", 9, 13),
    Sketcher.Constraint("Equal", 13, 14),
    Sketcher.Constraint("Equal", 11, 16),
    Sketcher.Constraint("Equal", 18, 20),
    Sketcher.Constraint("Equal", 19, 21),
    Sketcher.Constraint("Equal", 21, 22),
    Sketcher.Constraint("Equal", 20, 23),
    Sketcher.Constraint("Equal", 22, 25),
    Sketcher.Constraint("Equal", 23, 26),
    Sketcher.Constraint("Symmetric", 0, 3, 9, 3, -1, 1),
    Sketcher.Constraint("Symmetric", 5, 3, 13, 3, -1, 1),
    Sketcher.Constraint("Symmetric", 21, 3, 22, 3, -1, 1),
    Sketcher.Constraint("Symmetric", 19, 3, 25, 3, -1, 1),
    Sketcher.Constraint("Parallel", 2, 8),
    Sketcher.Constraint("Parallel", 6, 12),
    Sketcher.Constraint("Parallel", 4, 15),
    Sketcher.Constraint("Parallel", 10, 17),
    Sketcher.Constraint("Diameter", 19, Q("3 mm")),
    Sketcher.Constraint("Radius", 3, Q("5 mm")),
    Sketcher.Constraint("Diameter", 18, Q("3.5 mm")),
    Sketcher.Constraint("Diameter", 24, Q("9.5 mm")),
    Sketcher.Constraint("Radius", 0, Q("3.4 mm")),
    Sketcher.Constraint("DistanceY", -1, 1, 0, 3, Q("12.024898 mm")),
    Sketcher.Constraint("DistanceX", -1, 1, 11, 3, Q("11.845399 mm")),
    Sketcher.Constraint("DistanceX", -1, 1, 13, 3, Q("12.024898 mm")),
    Sketcher.Constraint("DistanceX", 21, 3, 9, 3, Q("6.3642 mm")),
    Sketcher.Constraint("DistanceX", 1, 2, 2, 2, Q("5.9933 mm")),
    Sketcher.Constraint("DistanceX", 4, 2, 3, 3, Q("2.049499 mm")),
    Sketcher.Constraint("DistanceY", 7, 1, 21, 3, Q("2.6753 mm")),
    Sketcher.Constraint("DistanceX", 25, 3, 13, 2, Q("3.074699 mm")),
    Sketcher.Constraint("DistanceY", 17, 2, 0, 2, Q("0.3702 mm")),
    Sketcher.Constraint("Distance", 15, Q("8.351851 mm")),
    Sketcher.Constraint("Distance", 17, Q("8.367859 mm")),
    Sketcher.Constraint("DistanceX", 0, 3, -1, 1, Q("12.019872 mm")),
    Sketcher.Constraint("DistanceX", 3, 3, -1, 1, Q("11.83669 mm")),
    Sketcher.Constraint("DistanceY", 3, 3, -1, 1, Q("0.035131 mm")),
    Sketcher.Constraint("DistanceY", 5, 3, -1, 1, Q("12.019872 mm")),
    Sketcher.Constraint("DistanceX", 7, 3, -1, 1, Q("0.012509 mm")),
    Sketcher.Constraint("DistanceX", -1, 1, 16, 3, Q("0.014789 mm")),
    Sketcher.Constraint("DistanceX", 19, 3, -1, 1, Q("6.718918 mm")),
    Sketcher.Constraint("DistanceY", 19, 3, -1, 1, Q("6.71611 mm")),
])
pad4 = doc.addObject("PartDesign::Pad", "Pad003")
body2.addObject(pad4)
pad4.Profile = sketch7
pad4.Length = 1.5
doc.recompute()

chamfer2 = doc.addObject("PartDesign::Chamfer", "Chamfer001")
body2.addObject(chamfer2)
chamfer2.Base = (pad4, edges_at(pad4, [
    (-13.77, 12.025, 4.6),
    (10.275, 12.02, 4.6),
    (-13.775, -12.02, 4.6),
    (10.27, -12.025, 4.6),
]))
chamfer2.Size = 1.4
doc.recompute()

chamfer3 = doc.addObject("PartDesign::Chamfer", "Chamfer002")
body2.addObject(chamfer3)
chamfer3.Base = (chamfer2, edges_at(chamfer2, [
    (-8.219, -6.716, 3.1),
    (-7.156, 5.658, 3.1),
    (4.156, -5.658, 3.1),
    (5.219, 6.716, 3.1),
]))
chamfer3.Size = 1

doc.recompute()
